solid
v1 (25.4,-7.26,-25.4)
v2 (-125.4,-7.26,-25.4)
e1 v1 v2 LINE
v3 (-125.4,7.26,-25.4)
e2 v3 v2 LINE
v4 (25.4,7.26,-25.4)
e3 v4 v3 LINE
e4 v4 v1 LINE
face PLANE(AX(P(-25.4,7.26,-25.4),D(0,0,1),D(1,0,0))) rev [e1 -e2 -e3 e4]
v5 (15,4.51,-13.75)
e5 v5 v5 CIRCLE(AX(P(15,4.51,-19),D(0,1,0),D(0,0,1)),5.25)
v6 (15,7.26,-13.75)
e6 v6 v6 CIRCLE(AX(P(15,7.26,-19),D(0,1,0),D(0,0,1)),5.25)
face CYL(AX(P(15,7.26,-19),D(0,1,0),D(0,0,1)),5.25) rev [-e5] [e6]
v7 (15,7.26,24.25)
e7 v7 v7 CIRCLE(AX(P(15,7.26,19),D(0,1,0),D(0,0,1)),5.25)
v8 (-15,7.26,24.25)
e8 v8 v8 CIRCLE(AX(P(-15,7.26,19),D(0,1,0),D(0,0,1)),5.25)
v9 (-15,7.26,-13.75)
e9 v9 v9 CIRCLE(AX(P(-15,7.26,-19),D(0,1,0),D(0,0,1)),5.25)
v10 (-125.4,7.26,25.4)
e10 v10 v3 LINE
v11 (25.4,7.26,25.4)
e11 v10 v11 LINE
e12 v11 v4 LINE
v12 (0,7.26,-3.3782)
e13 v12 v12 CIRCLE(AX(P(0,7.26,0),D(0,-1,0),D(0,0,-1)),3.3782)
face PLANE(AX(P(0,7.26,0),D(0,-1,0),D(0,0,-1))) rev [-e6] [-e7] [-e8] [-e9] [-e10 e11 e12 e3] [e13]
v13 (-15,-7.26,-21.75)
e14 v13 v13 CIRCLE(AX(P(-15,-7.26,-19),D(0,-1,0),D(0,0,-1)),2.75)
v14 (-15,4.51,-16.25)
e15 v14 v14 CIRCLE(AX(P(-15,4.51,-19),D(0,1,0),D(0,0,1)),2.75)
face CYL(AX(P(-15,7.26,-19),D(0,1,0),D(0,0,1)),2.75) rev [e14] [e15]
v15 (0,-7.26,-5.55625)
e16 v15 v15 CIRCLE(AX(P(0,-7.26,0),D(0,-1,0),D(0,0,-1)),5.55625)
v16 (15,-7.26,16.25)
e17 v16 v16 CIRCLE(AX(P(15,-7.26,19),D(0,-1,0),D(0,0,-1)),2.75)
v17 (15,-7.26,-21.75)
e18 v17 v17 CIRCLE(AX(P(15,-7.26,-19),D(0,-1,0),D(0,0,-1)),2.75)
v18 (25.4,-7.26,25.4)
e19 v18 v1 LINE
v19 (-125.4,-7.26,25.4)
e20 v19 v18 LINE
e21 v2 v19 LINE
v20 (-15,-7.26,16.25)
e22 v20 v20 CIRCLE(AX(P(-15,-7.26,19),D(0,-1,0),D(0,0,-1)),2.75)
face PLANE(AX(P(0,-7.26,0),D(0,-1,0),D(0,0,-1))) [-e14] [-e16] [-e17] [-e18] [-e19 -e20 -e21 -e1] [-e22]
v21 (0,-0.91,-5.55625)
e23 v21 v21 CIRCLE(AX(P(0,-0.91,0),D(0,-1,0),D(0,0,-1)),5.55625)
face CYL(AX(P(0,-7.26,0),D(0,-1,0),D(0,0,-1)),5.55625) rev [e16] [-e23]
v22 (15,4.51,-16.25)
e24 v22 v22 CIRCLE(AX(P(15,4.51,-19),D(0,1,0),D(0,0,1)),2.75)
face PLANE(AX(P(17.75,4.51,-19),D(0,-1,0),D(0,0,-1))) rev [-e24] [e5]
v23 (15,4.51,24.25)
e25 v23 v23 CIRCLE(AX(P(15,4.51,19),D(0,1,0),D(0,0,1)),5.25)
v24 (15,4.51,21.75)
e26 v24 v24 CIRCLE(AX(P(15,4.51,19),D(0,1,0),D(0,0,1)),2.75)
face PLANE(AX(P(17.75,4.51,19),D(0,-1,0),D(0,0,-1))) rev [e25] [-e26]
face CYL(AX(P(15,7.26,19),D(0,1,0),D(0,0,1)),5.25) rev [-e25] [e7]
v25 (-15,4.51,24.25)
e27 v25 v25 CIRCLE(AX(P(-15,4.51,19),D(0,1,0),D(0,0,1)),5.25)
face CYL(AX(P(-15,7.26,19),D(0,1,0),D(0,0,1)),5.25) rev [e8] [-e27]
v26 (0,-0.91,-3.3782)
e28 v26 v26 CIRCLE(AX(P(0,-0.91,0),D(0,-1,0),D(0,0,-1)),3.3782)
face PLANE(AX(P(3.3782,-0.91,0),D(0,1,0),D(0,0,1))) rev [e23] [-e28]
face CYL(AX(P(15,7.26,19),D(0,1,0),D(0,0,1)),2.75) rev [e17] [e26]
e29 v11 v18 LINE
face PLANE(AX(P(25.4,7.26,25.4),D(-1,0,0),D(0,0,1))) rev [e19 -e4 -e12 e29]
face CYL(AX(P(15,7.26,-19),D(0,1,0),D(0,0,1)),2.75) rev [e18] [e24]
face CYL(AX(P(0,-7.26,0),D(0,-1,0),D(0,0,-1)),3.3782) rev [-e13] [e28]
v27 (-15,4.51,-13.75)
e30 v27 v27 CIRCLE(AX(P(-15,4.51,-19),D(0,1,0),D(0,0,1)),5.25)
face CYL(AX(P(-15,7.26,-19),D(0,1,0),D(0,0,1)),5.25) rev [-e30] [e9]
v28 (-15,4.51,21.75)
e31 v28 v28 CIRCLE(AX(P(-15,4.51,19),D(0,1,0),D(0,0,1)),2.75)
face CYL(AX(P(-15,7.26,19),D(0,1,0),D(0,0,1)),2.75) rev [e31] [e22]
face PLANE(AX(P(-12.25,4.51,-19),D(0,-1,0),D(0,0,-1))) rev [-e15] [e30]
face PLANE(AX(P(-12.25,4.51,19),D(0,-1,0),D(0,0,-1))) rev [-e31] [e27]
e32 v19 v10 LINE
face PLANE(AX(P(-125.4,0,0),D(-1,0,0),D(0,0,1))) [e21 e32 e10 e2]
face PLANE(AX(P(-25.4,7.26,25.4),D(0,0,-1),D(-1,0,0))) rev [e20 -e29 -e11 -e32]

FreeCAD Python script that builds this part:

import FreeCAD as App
import Part
import Sketcher

V = App.Vector

doc = App.newDocument("Part")
params = doc.addObject("Spreadsheet::Sheet", "Params")
for row, (alias, value) in enumerate([
    ("sketch1_width", "50.8 mm"),
    ("pad1_length", "14.52 mm"),
    ("sketch2_diameter", "5.5 mm"),
    ("hole_diameter", "5.5 mm"),
    ("hole_cbore_diameter", "10.5 mm"),
    ("hole_cbore_depth", "2.75 mm"),
    ("hole2_diameter", "6.7564 mm"),
    ("hole2_cbore_diameter", "11.1125 mm"),
    ("hole2_cbore_depth", "6.35 mm"),
    ("sketch4_height", "50.8 mm"),
    ("sketch4_width", "14.52 mm"),
    ("pad2_length", "100 mm"),
], start=1):
    params.set(f"A{row}", alias)
    params.set(f"B{row}", "=" + value)
    params.setAlias(f"B{row}", alias)

body = doc.addObject("PartDesign::Body", "Body")

# Sketch on XZ plane
sketch1 = doc.addObject("Sketcher::SketchObject", "Sketch")
body.addObject(sketch1)
sketch1.AttachmentSupport = (doc.XZ_Plane, [""])
sketch1.MapMode = "FlatFace"
sketch1.addGeometry([
    Part.LineSegment(V(-25, -25, 0), V(-25, 25, 0)),
    Part.LineSegment(V(-25, 25, 0), V(25, 25, 0)),
    Part.LineSegment(V(25, 25, 0), V(25, -25, 0)),
    Part.LineSegment(V(25, -25, 0), V(-25, -25, 0)),
], False)
sketch1.addConstraint([
    Sketcher.Constraint("Coincident", 0, 2, 1, 1),
    Sketcher.Constraint("Coincident", 1, 2, 2, 1),
    Sketcher.Constraint("Coincident", 2, 2, 3, 1),
    Sketcher.Constraint("Coincident", 3, 2, 0, 1),
    Sketcher.Constraint("Vertical", 0),
    Sketcher.Constraint("Horizontal", 1),
    Sketcher.Constraint("Vertical", 2),
    Sketcher.Constraint("Horizontal", 3),
    Sketcher.Constraint("Symmetric", 0, 2, 2, 2, -1, 1),
    Sketcher.Constraint("Equal", 3, 0),
    Sketcher.Constraint("DistanceX", 1, 1, 1, 2, 50.8),
])
sketch1.setExpression("Constraints[10]", "Params.sketch1_width")
pad1 = doc.addObject("PartDesign::Pad", "Pad")
body.addObject(pad1)
pad1.Profile = sketch1
pad1.setExpression("Length", "Params.pad1_length")
pad1.Midplane = True

# Sketch on XZ plane
sketch2 = doc.addObject("Sketcher::SketchObject", "Sketch001")
body.addObject(sketch2)
sketch2.AttachmentSupport = (doc.XZ_Plane, [""])
sketch2.MapMode = "FlatFace"
sketch2.AttachmentOffset = App.Placement(V(0, 0, -7.26), App.Rotation())
sketch2.addGeometry([
    Part.Circle(V(-15, -19, 0), V(0, 0, 1), 2.8),
    Part.Circle(V(-15, 19, 0), V(0, 0, 1), 2.8),
    Part.Circle(V(15, 19, 0), V(0, 0, 1), 2.8),
    Part.Circle(V(15, -19, 0), V(0, 0, 1), 2.8),
], False)
sketch2.addConstraint([
    Sketcher.Constraint("Equal", 0, 1),
    Sketcher.Constraint("Equal", 1, 2),
    Sketcher.Constraint("Equal", 2, 3),
    Sketcher.Constraint("Symmetric", 0, 3, 2, 3, -1, 1),
    Sketcher.Constraint("Symmetric", 1, 3, 3, 3, -1, 1),
    Sketcher.Constraint("Symmetric", 1, 3, 2, 3, -2),
    Sketcher.Constraint("Diameter", 0, 5.5),
    Sketcher.Constraint("DistanceX", 0, 3, -1, 1, 15.0),
    Sketcher.Constraint("DistanceY", 0, 3, -1, 1, 19.0),
])
sketch2.setExpression("Constraints[6]", "Params.sketch2_diameter")
doc.recompute()
hole = doc.addObject("PartDesign::Hole", "Hole")
body.addObject(hole)
hole.Profile = sketch2
hole.ThreadType = "None"
hole.setExpression("Diameter", "Params.hole_diameter")
hole.DepthType = "ThroughAll"
hole.HoleCutType = "Counterbore"
hole.setExpression("HoleCutDiameter", "Params.hole_cbore_diameter")
hole.setExpression("HoleCutDepth", "Params.hole_cbore_depth")
hole.Reversed = True

# Sketch on XZ plane
sketch3 = doc.addObject("Sketcher::SketchObject", "Sketch002")
body.addObject(sketch3)
sketch3.AttachmentSupport = (doc.XZ_Plane, [""])
sketch3.MapMode = "FlatFace"
sketch3.AttachmentOffset = App.Placement(V(0, 0, 7.26), App.Rotation())
sketch3.addGeometry(Part.Circle(V(0, 0, 0), V(0, 0, 1), 3.4), False)
sketch3.addConstraint([
    Sketcher.Constraint("Coincident", 0, 3, -1, 1),
    Sketcher.Constraint("Diameter", 0, 6.7564),
])
doc.recompute()
hole2 = doc.addObject("PartDesign::Hole", "Hole001")
body.addObject(hole2)
hole2.Profile = sketch3
hole2.ThreadType = "None"
hole2.setExpression("Diameter", "Params.hole2_diameter")
hole2.DepthType = "ThroughAll"
hole2.HoleCutType = "Counterbore"
hole2.setExpression("HoleCutDiameter", "Params.hole2_cbore_diameter")
hole2.setExpression("HoleCutDepth", "Params.hole2_cbore_depth")

# Sketch on YZ plane
sketch4 = doc.addObject("Sketcher::SketchObject", "Sketch003")
body.addObject(sketch4)
sketch4.AttachmentSupport = (doc.YZ_Plane, [""])
sketch4.MapMode = "FlatFace"
sketch4.AttachmentOffset = App.Placement(V(0, 0, -25.4), App.Rotation())
sketch4.addGeometry([
    Part.LineSegment(V(7, -25, 0), V(-7, -25, 0)),
    Part.LineSegment(V(-7, -25, 0), V(-7, 25, 0)),
    Part.LineSegment(V(-7, 25, 0), V(7, 25, 0)),
    Part.LineSegment(V(7, 25, 0), V(7, -25, 0)),
], False)
sketch4.addConstraint([
    Sketcher.Constraint("Coincident", 0, 2, 1, 1),
    Sketcher.Constraint("Coincident", 1, 2, 2, 1),
    Sketcher.Constraint("Coincident", 2, 2, 3, 1),
    Sketcher.Constraint("Coincident", 3, 2, 0, 1),
    Sketcher.Constraint("Horizontal", 0),
    Sketcher.Constraint("Vertical", 1),
    Sketcher.Constraint("Horizontal", 2),
    Sketcher.Constraint("Vertical", 3),
    Sketcher.Constraint("Symmetric", 0, 2, 2, 2, -1, 1),
    Sketcher.Constraint("DistanceY", 1, 1, 1, 2, 50.8),
    Sketcher.Constraint("DistanceX", 0, 2, 0, 1, 14.52),
])
sketch4.setExpression("Constraints[9]", "Params.sketch4_height")
sketch4.setExpression("Constraints[10]", "Params.sketch4_width")
pad2 = doc.addObject("PartDesign::Pad", "Pad001")
body.addObject(pad2)
pad2.Profile = sketch4
pad2.setExpression("Length", "Params.pad2_length")
pad2.Reversed = True

doc.recompute()
